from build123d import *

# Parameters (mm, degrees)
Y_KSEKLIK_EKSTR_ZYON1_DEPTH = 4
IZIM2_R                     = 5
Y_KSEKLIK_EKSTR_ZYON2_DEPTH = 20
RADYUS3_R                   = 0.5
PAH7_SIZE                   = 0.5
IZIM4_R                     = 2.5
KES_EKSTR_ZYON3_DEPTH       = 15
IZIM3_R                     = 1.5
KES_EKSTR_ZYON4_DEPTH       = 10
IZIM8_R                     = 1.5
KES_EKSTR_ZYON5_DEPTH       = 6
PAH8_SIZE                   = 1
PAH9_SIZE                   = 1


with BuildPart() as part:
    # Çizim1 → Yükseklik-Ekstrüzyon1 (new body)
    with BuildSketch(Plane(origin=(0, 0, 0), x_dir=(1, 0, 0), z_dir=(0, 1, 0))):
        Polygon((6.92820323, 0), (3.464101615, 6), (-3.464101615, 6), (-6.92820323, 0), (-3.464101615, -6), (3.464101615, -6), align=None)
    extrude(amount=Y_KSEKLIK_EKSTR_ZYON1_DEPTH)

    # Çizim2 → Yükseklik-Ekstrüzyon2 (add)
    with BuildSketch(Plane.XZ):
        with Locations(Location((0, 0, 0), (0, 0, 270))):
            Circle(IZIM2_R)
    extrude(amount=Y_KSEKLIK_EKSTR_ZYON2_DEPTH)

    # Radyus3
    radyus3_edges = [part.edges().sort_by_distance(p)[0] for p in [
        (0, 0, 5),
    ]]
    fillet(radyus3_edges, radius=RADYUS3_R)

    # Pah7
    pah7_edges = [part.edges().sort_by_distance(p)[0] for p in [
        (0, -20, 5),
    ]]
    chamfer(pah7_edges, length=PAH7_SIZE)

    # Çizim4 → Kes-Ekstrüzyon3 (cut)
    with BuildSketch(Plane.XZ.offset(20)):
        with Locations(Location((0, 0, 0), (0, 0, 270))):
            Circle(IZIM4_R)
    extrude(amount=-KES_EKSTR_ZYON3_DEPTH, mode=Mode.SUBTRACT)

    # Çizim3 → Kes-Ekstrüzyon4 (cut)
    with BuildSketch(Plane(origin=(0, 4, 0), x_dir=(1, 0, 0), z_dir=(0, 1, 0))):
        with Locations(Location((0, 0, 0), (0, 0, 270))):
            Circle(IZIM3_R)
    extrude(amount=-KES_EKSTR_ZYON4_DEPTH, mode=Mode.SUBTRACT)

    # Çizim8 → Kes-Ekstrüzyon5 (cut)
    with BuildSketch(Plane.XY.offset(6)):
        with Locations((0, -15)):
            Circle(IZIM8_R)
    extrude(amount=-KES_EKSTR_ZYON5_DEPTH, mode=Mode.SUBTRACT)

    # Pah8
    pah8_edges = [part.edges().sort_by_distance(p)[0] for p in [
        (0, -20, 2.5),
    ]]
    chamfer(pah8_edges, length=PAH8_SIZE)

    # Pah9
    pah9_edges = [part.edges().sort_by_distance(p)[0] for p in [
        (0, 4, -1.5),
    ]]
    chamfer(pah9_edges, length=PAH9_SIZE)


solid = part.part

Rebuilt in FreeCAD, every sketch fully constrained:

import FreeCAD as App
import Part
import Sketcher
Q = App.Units.Quantity


def edges_at(feature, points):
    """Names of the edges that pass closest to the given points."""
    edges = feature.Shape.Edges
    near = lambda p: min(range(len(edges)), key=lambda i: edges[i].distToShape(Part.Vertex(*p))[0])
    return sorted({f"Edge{near(p) + 1}" for p in points})


def add_polygon(sketch, points):
    """Adds a closed chain of lines whose ends are joined by coincident constraints."""
    first, n = sketch.GeometryCount, len(points)
    for a, b in zip(points, points[1:] + points[:1]):
        sketch.addGeometry(Part.LineSegment(App.Vector(*a, 0), App.Vector(*b, 0)), False)
    for i in range(n):
        sketch.addConstraint(Sketcher.Constraint("Coincident", first + i, 2, first + (i + 1) % n, 1))

doc = App.newDocument("Part")
body = doc.addObject("PartDesign::Body", "Body")

sketch1 = body.newObject("Sketcher::SketchObject", "Sketch")
sketch1.AttachmentSupport = (doc.getObject("XZ_Plane"), [""])
sketch1.MapMode = "FlatFace"
add_polygon(sketch1, [(7, 0), (3, -6), (-3, -6), (-7, 0), (-3, 6), (3, 6)])
sketch1.addConstraint([
    Sketcher.Constraint("Horizontal", 1),
    Sketcher.Constraint("Horizontal", 4),
    Sketcher.Constraint("Symmetric", 0, 2, 3, 2, -1, 1),
    Sketcher.Constraint("Symmetric", 2, 2, 5, 2, -1, 1),
    Sketcher.Constraint("PointOnObject", 2, 2, -1),
    Sketcher.Constraint("Parallel", 2, 5),
    Sketcher.Constraint("Vertical", 1, 2, 3, 2),
    Sketcher.Constraint("Angle", 0, Q("-120 deg")),
    Sketcher.Constraint("DistanceY", 0, 2, -1, 1, 6.0),
    Sketcher.Constraint("DistanceX", -1, 1, 0, 2, 3.464102),
])
pad1 = body.newObject("PartDesign::Pad", "Pad")
pad1.Profile = sketch1
pad1.Length = 4
pad1.Reversed = True

sketch2 = body.newObject("Sketcher::SketchObject", "Sketch001")
sketch2.AttachmentSupport = (doc.getObject("XZ_Plane"), [""])
sketch2.MapMode = "FlatFace"
sketch2.addGeometry(Part.Circle(App.Vector(0, 0, 0), App.Vector(0, 0, 1), 5), False)
sketch2.addConstraint([
    Sketcher.Constraint("Coincident", 0, 3, -1, 1),
    Sketcher.Constraint("Diameter", 0, 10.0),
])
pad2 = body.newObject("PartDesign::Pad", "Pad001")
pad2.Profile = sketch2
pad2.Length = 20
doc.recompute()

fillet = body.newObject("PartDesign::Fillet", "Fillet")
fillet.Base = (pad2, edges_at(pad2, [(0, 0, 5)]))
fillet.Radius = 0.5
doc.recompute()

chamfer = body.newObject("PartDesign::Chamfer", "Chamfer")
chamfer.Base = (fillet, edges_at(fillet, [(0, -20, 5)]))
chamfer.Size = 0.5

sketch3 = body.newObject("Sketcher::SketchObject", "Sketch002")
sketch3.AttachmentSupport = (doc.getObject("XZ_Plane"), [""])
sketch3.MapMode = "FlatFace"
sketch3.AttachmentOffset = App.Placement(App.Vector(0, 0, 20), App.Rotation())
sketch3.addGeometry(Part.Circle(App.Vector(0, 0, 0), App.Vector(0, 0, 1), 2.5), False)
sketch3.addConstraint([
    Sketcher.Constraint("Coincident", 0, 3, -1, 1),
    Sketcher.Constraint("Diameter", 0, 5.0),
])
pocket1 = body.newObject("PartDesign::Pocket", "Pocket")
pocket1.Profile = sketch3
pocket1.Length = 15

sketch4 = body.newObject("Sketcher::SketchObject", "Sketch003")
sketch4.AttachmentSupport = (doc.getObject("XZ_Plane"), [""])
sketch4.MapMode = "FlatFace"
sketch4.AttachmentOffset = App.Placement(App.Vector(0, 0, -4), App.Rotation())
sketch4.addGeometry(Part.Circle(App.Vector(0, 0, 0), App.Vector(0, 0, 1), 1.5), False)
sketch4.addConstraint([
    Sketcher.Constraint("Coincident", 0, 3, -1, 1),
    Sketcher.Constraint("Diameter", 0, 3.0),
])
pocket2 = body.newObject("PartDesign::Pocket", "Pocket001")
pocket2.Profile = sketch4
pocket2.Length = 10
pocket2.Reversed = True

sketch5 = body.newObject("Sketcher::SketchObject", "Sketch004")
sketch5.AttachmentSupport = (doc.getObject("XY_Plane"), [""])
sketch5.MapMode = "FlatFace"
sketch5.AttachmentOffset = App.Placement(App.Vector(0, 0, 6), App.Rotation())
sketch5.addGeometry(Part.Circle(App.Vector(0, -15, 0), App.Vector(0, 0, 1), 1.5), False)
sketch5.addConstraint([
    Sketcher.Constraint("PointOnObject", 0, 3, -2),
    Sketcher.Constraint("Diameter", 0, 3.0),
    Sketcher.Constraint("DistanceY", 0, 3, -1, 1, 15.0),
])
pocket3 = body.newObject("PartDesign::Pocket", "Pocket002")
pocket3.Profile = sketch5
pocket3.Length = 6
doc.recompute()

chamfer2 = body.newObject("PartDesign::Chamfer", "Chamfer001")
chamfer2.Base = (pocket3, edges_at(pocket3, [(0, -20, 2.5)]))
chamfer2.Size = 1
doc.recompute()

chamfer3 = body.newObject("PartDesign::Chamfer", "Chamfer002")
chamfer3.Base = (chamfer2, edges_at(chamfer2, [(0, 4, -1.5)]))
chamfer3.Size = 1

doc.recompute()
